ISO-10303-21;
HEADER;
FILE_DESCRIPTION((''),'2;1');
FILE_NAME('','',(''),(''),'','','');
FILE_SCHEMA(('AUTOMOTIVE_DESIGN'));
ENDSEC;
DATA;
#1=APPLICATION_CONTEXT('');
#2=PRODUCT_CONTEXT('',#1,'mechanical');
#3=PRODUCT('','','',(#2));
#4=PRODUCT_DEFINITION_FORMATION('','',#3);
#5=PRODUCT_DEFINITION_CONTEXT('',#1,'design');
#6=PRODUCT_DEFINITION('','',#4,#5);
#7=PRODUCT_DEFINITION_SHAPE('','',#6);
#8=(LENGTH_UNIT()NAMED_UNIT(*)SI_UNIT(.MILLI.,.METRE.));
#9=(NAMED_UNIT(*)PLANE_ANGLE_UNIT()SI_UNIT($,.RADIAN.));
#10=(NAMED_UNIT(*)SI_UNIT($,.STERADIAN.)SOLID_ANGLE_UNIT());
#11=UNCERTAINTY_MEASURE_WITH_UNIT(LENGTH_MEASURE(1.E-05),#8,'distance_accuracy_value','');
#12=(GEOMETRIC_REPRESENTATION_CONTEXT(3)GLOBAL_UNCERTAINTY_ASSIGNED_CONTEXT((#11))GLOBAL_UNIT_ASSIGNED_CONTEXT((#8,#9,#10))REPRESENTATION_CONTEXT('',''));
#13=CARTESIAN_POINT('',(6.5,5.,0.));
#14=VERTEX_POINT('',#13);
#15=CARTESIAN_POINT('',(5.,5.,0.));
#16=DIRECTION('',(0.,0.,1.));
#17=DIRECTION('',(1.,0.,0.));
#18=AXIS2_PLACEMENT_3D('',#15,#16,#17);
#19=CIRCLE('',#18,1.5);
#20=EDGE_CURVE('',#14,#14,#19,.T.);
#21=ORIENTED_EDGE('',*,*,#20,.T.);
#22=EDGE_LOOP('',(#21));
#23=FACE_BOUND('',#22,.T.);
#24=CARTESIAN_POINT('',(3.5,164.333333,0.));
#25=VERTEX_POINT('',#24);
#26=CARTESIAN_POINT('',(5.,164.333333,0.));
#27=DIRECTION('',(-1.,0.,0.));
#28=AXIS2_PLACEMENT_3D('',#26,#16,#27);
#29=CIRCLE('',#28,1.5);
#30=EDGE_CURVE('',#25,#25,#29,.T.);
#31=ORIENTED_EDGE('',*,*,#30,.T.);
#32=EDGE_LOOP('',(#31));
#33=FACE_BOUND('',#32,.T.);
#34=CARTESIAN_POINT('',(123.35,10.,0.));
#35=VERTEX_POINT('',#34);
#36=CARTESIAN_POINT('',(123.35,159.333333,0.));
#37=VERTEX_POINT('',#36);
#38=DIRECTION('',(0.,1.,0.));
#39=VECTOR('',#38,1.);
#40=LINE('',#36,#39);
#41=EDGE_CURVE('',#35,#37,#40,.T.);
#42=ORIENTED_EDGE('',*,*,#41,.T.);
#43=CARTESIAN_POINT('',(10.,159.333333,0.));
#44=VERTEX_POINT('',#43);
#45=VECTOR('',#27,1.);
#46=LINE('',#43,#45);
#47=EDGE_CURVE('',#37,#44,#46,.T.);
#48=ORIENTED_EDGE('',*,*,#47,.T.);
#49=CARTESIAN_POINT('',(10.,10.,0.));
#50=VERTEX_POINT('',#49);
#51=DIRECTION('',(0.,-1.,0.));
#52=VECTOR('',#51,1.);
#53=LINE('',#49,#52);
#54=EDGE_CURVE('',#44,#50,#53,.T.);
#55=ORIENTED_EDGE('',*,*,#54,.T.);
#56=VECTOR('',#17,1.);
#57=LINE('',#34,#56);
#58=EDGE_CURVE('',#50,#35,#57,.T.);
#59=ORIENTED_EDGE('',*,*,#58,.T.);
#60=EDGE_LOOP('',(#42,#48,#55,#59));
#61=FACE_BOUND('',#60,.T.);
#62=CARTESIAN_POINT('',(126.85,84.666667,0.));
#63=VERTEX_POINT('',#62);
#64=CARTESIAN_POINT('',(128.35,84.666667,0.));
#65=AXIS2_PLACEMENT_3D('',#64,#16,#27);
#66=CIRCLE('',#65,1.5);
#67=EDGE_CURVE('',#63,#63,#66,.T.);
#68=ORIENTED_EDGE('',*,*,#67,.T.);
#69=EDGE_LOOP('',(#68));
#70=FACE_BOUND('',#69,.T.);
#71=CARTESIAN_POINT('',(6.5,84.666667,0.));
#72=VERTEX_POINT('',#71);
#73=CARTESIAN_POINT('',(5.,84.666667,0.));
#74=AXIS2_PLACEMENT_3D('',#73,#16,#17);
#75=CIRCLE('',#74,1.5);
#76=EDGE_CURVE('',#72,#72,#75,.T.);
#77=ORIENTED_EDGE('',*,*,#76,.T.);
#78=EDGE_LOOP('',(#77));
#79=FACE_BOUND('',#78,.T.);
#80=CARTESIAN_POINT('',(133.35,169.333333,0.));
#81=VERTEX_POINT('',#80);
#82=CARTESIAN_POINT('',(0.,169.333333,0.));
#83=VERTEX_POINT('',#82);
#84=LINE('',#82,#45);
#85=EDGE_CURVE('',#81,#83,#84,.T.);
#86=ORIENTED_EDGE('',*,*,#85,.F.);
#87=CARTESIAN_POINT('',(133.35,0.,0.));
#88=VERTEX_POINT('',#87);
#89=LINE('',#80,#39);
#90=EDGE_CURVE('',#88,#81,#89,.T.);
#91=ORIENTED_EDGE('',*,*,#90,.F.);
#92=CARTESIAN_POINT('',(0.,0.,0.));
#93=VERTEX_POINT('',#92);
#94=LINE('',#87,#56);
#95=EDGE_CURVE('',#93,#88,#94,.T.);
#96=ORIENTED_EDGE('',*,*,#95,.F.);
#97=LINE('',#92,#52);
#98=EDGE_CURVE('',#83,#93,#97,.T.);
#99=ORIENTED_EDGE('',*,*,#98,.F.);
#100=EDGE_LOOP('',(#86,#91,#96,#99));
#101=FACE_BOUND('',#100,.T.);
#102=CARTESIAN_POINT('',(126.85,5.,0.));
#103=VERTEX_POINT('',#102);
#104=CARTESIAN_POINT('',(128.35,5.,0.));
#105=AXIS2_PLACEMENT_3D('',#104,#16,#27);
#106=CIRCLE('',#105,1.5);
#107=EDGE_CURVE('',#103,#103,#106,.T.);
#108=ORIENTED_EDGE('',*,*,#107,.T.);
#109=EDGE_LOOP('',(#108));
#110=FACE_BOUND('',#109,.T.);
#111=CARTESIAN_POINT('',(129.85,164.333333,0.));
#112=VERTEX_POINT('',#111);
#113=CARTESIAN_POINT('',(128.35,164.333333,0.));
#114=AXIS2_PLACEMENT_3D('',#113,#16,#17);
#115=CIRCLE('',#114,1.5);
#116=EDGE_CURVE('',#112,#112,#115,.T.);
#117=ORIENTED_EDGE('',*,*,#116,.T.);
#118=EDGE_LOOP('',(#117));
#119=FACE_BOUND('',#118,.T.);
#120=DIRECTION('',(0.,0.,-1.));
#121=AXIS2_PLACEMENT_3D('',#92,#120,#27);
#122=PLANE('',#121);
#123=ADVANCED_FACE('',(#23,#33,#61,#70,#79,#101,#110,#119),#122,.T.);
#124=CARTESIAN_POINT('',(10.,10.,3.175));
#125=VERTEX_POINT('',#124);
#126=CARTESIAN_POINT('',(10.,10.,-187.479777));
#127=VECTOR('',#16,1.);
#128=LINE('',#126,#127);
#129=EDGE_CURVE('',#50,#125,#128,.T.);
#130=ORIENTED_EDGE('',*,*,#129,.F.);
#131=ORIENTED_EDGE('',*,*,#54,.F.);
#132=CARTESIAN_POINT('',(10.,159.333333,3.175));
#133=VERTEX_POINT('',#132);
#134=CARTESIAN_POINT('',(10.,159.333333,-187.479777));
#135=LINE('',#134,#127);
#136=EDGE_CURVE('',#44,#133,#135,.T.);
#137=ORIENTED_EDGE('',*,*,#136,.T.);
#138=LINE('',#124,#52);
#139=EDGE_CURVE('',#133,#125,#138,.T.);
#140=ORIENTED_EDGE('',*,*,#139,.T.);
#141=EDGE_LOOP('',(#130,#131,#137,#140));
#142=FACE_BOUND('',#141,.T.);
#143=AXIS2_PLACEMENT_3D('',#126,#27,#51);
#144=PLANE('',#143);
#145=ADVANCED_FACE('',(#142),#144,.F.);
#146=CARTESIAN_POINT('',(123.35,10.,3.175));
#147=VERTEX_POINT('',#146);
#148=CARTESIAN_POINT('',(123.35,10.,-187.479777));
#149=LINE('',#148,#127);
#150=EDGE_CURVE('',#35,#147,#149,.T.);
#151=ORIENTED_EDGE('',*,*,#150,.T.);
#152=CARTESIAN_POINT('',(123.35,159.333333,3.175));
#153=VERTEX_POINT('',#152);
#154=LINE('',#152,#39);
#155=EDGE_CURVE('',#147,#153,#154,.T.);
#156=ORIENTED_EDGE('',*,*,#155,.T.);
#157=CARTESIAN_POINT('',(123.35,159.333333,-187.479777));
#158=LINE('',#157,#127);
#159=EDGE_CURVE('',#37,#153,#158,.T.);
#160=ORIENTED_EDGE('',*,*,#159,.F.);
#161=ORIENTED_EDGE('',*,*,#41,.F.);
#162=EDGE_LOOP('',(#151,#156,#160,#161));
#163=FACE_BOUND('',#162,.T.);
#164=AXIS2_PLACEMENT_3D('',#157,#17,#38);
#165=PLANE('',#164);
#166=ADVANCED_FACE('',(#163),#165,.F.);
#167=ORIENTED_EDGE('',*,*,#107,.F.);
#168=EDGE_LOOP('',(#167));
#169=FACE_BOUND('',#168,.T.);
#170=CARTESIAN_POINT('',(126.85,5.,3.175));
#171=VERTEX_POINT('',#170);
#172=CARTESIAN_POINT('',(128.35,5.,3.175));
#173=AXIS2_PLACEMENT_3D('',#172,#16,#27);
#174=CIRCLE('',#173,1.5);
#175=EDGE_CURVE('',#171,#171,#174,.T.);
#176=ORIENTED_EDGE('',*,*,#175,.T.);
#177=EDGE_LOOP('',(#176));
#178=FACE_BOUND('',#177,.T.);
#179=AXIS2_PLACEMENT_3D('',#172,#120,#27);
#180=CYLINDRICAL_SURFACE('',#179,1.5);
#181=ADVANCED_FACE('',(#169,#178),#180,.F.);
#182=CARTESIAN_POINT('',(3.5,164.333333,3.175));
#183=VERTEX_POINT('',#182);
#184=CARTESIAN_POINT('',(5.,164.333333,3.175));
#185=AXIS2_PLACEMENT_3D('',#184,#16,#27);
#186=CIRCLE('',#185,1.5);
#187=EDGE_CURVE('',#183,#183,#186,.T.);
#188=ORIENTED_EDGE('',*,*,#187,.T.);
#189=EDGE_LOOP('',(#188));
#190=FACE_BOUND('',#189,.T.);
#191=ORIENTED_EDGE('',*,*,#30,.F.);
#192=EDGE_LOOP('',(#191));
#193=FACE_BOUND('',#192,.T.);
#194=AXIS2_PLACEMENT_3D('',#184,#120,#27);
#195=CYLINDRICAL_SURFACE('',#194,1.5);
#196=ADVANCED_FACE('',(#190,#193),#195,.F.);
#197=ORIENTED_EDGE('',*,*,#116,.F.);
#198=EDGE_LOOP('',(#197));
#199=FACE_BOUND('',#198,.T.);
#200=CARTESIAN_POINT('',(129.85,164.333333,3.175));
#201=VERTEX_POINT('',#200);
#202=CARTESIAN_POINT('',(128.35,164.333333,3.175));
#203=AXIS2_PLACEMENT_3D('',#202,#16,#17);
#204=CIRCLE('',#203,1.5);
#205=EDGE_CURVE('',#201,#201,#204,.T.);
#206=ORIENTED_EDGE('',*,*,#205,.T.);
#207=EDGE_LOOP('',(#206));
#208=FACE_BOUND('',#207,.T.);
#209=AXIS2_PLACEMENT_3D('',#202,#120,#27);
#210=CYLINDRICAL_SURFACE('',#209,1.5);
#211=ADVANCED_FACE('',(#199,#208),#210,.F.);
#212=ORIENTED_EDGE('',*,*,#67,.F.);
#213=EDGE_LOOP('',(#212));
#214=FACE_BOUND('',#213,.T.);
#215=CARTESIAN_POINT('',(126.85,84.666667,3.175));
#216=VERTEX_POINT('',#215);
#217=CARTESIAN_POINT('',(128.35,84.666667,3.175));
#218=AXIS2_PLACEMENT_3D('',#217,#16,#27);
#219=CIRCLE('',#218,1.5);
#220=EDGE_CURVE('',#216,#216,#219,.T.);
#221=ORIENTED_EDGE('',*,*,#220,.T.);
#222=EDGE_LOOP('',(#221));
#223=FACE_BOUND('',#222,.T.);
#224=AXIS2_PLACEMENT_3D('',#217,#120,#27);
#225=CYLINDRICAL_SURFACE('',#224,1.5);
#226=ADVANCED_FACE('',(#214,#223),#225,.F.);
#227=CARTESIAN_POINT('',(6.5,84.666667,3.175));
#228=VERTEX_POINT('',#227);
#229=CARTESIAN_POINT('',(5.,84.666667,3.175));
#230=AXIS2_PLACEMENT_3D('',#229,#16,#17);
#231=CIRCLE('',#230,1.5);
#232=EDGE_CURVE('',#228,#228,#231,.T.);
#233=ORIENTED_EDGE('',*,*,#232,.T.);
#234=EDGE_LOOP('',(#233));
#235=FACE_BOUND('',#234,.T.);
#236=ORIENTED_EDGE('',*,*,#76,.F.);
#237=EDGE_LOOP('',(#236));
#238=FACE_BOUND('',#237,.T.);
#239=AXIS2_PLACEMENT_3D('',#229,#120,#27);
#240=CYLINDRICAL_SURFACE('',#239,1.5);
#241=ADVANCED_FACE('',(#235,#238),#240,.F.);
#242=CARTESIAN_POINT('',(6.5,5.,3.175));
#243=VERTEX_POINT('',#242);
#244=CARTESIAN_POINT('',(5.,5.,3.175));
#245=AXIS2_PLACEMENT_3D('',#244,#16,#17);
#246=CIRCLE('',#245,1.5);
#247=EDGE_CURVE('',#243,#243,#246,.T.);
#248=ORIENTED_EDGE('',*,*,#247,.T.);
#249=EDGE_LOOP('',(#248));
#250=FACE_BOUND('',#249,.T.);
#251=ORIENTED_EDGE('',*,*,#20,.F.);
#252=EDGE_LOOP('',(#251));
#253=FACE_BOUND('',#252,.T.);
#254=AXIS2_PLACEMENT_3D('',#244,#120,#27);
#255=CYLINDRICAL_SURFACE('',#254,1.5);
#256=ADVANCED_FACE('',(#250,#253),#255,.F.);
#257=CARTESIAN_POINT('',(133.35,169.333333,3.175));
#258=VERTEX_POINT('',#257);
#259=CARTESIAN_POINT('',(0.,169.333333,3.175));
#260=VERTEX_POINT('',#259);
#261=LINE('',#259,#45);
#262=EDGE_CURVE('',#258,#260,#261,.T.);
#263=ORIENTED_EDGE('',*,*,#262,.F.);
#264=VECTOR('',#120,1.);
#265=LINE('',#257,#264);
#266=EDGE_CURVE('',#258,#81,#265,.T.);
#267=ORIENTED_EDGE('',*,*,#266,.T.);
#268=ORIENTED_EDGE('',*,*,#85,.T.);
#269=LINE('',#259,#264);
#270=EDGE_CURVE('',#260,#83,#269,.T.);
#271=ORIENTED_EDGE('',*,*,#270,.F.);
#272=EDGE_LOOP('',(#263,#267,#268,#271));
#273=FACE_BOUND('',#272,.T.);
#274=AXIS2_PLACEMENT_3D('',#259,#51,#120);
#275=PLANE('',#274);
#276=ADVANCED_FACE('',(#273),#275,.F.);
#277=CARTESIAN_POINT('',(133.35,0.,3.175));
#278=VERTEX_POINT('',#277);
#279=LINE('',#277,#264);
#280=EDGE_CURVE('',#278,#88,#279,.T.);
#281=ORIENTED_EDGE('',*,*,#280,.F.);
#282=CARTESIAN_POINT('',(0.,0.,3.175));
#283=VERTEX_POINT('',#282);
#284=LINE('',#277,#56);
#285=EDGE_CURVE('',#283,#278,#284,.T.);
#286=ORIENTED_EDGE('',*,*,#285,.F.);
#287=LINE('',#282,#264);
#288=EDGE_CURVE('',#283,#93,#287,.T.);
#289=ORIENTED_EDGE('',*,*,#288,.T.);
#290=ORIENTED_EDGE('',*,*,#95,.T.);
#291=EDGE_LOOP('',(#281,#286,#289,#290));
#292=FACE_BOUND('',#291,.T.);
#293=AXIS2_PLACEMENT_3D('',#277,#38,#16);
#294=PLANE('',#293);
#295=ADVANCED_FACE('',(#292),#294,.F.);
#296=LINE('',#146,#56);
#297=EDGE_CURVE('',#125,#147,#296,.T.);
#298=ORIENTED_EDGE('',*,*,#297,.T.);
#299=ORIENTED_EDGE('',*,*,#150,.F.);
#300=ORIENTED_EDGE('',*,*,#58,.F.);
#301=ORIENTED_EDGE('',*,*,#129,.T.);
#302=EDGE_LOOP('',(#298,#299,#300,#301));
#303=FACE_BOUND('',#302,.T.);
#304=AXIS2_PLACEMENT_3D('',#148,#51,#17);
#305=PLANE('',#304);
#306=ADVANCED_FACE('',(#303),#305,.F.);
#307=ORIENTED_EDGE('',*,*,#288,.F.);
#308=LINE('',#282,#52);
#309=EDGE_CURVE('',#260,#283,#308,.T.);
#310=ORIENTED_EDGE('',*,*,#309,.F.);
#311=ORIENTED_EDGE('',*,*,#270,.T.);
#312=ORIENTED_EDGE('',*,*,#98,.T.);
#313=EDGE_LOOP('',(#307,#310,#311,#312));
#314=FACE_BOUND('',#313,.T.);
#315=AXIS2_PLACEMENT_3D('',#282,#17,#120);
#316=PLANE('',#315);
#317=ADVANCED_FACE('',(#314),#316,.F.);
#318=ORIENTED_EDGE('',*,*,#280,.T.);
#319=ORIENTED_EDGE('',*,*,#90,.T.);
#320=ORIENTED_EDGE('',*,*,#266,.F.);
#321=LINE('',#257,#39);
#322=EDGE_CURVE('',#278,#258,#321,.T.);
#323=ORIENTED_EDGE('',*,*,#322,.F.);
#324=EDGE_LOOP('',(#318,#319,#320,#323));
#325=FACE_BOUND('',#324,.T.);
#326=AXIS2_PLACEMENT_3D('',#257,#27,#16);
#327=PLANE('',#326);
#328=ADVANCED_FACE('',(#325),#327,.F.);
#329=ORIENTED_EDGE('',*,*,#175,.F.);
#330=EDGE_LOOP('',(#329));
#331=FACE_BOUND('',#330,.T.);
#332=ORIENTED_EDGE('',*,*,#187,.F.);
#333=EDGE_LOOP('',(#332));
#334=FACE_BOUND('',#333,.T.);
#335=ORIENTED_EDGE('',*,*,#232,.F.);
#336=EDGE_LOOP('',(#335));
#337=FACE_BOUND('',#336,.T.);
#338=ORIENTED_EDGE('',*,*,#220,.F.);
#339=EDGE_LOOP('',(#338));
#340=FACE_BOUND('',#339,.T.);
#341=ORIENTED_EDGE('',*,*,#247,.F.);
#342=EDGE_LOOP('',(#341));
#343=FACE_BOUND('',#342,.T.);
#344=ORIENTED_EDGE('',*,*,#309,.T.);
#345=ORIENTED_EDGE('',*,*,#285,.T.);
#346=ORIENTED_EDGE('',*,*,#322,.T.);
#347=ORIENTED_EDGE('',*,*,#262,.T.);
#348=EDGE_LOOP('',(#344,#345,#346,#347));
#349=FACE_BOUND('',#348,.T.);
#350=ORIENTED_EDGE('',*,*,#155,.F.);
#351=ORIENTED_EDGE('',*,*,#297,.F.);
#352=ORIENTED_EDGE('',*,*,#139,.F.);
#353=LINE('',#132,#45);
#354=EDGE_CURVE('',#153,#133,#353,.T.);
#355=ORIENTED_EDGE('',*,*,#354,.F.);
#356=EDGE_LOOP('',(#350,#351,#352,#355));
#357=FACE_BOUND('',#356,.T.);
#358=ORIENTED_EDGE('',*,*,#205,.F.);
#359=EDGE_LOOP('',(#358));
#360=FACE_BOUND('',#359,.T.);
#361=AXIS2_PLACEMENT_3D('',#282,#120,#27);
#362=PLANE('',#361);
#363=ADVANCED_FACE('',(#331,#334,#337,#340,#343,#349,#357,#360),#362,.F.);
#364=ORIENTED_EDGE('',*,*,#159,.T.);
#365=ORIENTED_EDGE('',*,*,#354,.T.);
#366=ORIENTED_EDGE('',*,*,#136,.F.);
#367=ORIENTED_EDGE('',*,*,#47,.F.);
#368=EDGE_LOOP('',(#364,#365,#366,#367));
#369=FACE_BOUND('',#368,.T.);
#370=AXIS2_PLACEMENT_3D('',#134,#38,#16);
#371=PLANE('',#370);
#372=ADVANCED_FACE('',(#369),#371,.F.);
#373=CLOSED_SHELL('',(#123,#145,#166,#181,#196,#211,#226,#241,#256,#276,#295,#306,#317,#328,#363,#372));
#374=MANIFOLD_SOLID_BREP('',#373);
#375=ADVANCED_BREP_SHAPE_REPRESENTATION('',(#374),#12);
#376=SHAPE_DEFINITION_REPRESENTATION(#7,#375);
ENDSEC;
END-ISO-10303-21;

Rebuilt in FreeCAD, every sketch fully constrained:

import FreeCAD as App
import Part
import Sketcher
Q = App.Units.Quantity


def add_polygon(sketch, points):
    """Adds a closed chain of lines whose ends are joined by coincident constraints."""
    first, n = sketch.GeometryCount, len(points)
    for a, b in zip(points, points[1:] + points[:1]):
        sketch.addGeometry(Part.LineSegment(App.Vector(*a, 0), App.Vector(*b, 0)), False)
    for i in range(n):
        sketch.addConstraint(Sketcher.Constraint("Coincident", first + i, 2, first + (i + 1) % n, 1))

doc = App.newDocument("Part")
params = doc.addObject("Spreadsheet::Sheet", "Params")
for row, (alias, value) in enumerate([
    ("sketch1_width", "5.25 in"),
    ("pad1_length", "0.125 in"),
    ("pocket1_length", "0.125 in"),
], start=1):
    params.set(f"A{row}", alias)
    params.set(f"B{row}", "=" + value)
    params.setAlias(f"B{row}", alias)

body = doc.addObject("PartDesign::Body", "Body")

# Sketch on XY plane
sketch1 = body.newObject("Sketcher::SketchObject", "Sketch")
sketch1.AttachmentSupport = (doc.getObject("XY_Plane"), [""])
sketch1.MapMode = "FlatFace"
add_polygon(sketch1, [(0, 169.3), (0, 0), (133.3, 0), (133.3, 169.3)])  # lines 0-3
sketch1.addGeometry(Part.Circle(App.Vector(5, 5, 0), App.Vector(0, 0, 1), 1.5), False)  # 4
sketch1.addGeometry(Part.Circle(App.Vector(128.3, 5, 0), App.Vector(0, 0, 1), 1.5), False)  # 5
sketch1.addGeometry(Part.Circle(App.Vector(5, 84.7, 0), App.Vector(0, 0, 1), 1.5), False)  # 6
sketch1.addGeometry(Part.Circle(App.Vector(5, 164.3, 0), App.Vector(0, 0, 1), 1.5), False)  # 7
sketch1.addGeometry(Part.Circle(App.Vector(128.3, 84.7, 0), App.Vector(0, 0, 1), 1.5), False)  # 8
sketch1.addGeometry(Part.Circle(App.Vector(128.3, 164.3, 0), App.Vector(0, 0, 1), 1.5), False)  # 9
sketch1.addConstraint(Sketcher.Constraint("Vertical", 0))
sketch1.addConstraint(Sketcher.Constraint("Horizontal", 1))
sketch1.addConstraint(Sketcher.Constraint("Vertical", 2))
sketch1.addConstraint(Sketcher.Constraint("Horizontal", 3))
sketch1.addConstraint(Sketcher.Constraint("Coincident", 0, 2, -1, 1))
sketch1.addConstraint(Sketcher.Constraint("Equal", 4, 5))
sketch1.addConstraint(Sketcher.Constraint("Equal", 5, 6))
sketch1.addConstraint(Sketcher.Constraint("Equal", 6, 7))
sketch1.addConstraint(Sketcher.Constraint("Equal", 7, 8))
sketch1.addConstraint(Sketcher.Constraint("Equal", 8, 9))
sketch1.addConstraint(Sketcher.Constraint("Horizontal", 4, 3, 5, 3))
sketch1.addConstraint(Sketcher.Constraint("Horizontal", 6, 3, 8, 3))
sketch1.addConstraint(Sketcher.Constraint("Horizontal", 7, 3, 9, 3))
sketch1.addConstraint(Sketcher.Constraint("Vertical", 4, 3, 6, 3))
sketch1.addConstraint(Sketcher.Constraint("Vertical", 6, 3, 7, 3))
sketch1.addConstraint(Sketcher.Constraint("Vertical", 5, 3, 8, 3))
sketch1.addConstraint(Sketcher.Constraint("Vertical", 8, 3, 9, 3))
sketch1.addConstraint(Sketcher.Constraint("DistanceX", 1, 1, 1, 2, Q("5.25 in")))
sketch1.addConstraint(Sketcher.Constraint("Diameter", 4, Q("3 mm")))
sketch1.addConstraint(Sketcher.Constraint("DistanceX", -1, 1, 4, 3, Q("5 mm")))
sketch1.addConstraint(Sketcher.Constraint("DistanceY", -1, 1, 4, 3, Q("5 mm")))
sketch1.addConstraint(Sketcher.Constraint("DistanceX", -1, 1, 5, 3, Q("128.35 mm")))
sketch1.addConstraint(Sketcher.Constraint("DistanceY", 9, 3, 2, 2, Q("5 mm")))
sketch1.addConstraint(Sketcher.Constraint("DistanceY", 0, 2, 0, 1, Q("169.333333 mm")))
sketch1.addConstraint(Sketcher.Constraint("DistanceY", -1, 1, 6, 3, Q("84.666667 mm")))
sketch1.setExpression("Constraints[21]", "Params.sketch1_width")
pad1 = body.newObject("PartDesign::Pad", "Pad")
pad1.Profile = sketch1
pad1.setExpression("Length", "Params.pad1_length")

# Sketch on XY plane
sketch2 = body.newObject("Sketcher::SketchObject", "Sketch001")
sketch2.AttachmentSupport = (doc.getObject("XY_Plane"), [""])
sketch2.MapMode = "FlatFace"
sketch2.AttachmentOffset = App.Placement(App.Vector(0, 0, 0.125 * 25.4), App.Rotation())
add_polygon(sketch2, [(10, 159), (10, 10), (123, 10), (123, 159)])  # lines 0-3
sketch2.addConstraint(Sketcher.Constraint("Vertical", 0))
sketch2.addConstraint(Sketcher.Constraint("Horizontal", 1))
sketch2.addConstraint(Sketcher.Constraint("Vertical", 2))
sketch2.addConstraint(Sketcher.Constraint("Horizontal", 3))
sketch2.addConstraint(Sketcher.Constraint("DistanceX", 1, 1, 1, 2, Q("113.35 mm")))
sketch2.addConstraint(Sketcher.Constraint("DistanceX", -1, 1, 0, 2, Q("10 mm")))
sketch2.addConstraint(Sketcher.Constraint("DistanceY", -1, 1, 0, 2, Q("10 mm")))
sketch2.addConstraint(Sketcher.Constraint("DistanceY", 0, 2, 0, 1, Q("149.333333 mm")))
pocket1 = body.newObject("PartDesign::Pocket", "Pocket")
pocket1.Profile = sketch2
pocket1.setExpression("Length", "Params.pocket1_length")

doc.recompute()
